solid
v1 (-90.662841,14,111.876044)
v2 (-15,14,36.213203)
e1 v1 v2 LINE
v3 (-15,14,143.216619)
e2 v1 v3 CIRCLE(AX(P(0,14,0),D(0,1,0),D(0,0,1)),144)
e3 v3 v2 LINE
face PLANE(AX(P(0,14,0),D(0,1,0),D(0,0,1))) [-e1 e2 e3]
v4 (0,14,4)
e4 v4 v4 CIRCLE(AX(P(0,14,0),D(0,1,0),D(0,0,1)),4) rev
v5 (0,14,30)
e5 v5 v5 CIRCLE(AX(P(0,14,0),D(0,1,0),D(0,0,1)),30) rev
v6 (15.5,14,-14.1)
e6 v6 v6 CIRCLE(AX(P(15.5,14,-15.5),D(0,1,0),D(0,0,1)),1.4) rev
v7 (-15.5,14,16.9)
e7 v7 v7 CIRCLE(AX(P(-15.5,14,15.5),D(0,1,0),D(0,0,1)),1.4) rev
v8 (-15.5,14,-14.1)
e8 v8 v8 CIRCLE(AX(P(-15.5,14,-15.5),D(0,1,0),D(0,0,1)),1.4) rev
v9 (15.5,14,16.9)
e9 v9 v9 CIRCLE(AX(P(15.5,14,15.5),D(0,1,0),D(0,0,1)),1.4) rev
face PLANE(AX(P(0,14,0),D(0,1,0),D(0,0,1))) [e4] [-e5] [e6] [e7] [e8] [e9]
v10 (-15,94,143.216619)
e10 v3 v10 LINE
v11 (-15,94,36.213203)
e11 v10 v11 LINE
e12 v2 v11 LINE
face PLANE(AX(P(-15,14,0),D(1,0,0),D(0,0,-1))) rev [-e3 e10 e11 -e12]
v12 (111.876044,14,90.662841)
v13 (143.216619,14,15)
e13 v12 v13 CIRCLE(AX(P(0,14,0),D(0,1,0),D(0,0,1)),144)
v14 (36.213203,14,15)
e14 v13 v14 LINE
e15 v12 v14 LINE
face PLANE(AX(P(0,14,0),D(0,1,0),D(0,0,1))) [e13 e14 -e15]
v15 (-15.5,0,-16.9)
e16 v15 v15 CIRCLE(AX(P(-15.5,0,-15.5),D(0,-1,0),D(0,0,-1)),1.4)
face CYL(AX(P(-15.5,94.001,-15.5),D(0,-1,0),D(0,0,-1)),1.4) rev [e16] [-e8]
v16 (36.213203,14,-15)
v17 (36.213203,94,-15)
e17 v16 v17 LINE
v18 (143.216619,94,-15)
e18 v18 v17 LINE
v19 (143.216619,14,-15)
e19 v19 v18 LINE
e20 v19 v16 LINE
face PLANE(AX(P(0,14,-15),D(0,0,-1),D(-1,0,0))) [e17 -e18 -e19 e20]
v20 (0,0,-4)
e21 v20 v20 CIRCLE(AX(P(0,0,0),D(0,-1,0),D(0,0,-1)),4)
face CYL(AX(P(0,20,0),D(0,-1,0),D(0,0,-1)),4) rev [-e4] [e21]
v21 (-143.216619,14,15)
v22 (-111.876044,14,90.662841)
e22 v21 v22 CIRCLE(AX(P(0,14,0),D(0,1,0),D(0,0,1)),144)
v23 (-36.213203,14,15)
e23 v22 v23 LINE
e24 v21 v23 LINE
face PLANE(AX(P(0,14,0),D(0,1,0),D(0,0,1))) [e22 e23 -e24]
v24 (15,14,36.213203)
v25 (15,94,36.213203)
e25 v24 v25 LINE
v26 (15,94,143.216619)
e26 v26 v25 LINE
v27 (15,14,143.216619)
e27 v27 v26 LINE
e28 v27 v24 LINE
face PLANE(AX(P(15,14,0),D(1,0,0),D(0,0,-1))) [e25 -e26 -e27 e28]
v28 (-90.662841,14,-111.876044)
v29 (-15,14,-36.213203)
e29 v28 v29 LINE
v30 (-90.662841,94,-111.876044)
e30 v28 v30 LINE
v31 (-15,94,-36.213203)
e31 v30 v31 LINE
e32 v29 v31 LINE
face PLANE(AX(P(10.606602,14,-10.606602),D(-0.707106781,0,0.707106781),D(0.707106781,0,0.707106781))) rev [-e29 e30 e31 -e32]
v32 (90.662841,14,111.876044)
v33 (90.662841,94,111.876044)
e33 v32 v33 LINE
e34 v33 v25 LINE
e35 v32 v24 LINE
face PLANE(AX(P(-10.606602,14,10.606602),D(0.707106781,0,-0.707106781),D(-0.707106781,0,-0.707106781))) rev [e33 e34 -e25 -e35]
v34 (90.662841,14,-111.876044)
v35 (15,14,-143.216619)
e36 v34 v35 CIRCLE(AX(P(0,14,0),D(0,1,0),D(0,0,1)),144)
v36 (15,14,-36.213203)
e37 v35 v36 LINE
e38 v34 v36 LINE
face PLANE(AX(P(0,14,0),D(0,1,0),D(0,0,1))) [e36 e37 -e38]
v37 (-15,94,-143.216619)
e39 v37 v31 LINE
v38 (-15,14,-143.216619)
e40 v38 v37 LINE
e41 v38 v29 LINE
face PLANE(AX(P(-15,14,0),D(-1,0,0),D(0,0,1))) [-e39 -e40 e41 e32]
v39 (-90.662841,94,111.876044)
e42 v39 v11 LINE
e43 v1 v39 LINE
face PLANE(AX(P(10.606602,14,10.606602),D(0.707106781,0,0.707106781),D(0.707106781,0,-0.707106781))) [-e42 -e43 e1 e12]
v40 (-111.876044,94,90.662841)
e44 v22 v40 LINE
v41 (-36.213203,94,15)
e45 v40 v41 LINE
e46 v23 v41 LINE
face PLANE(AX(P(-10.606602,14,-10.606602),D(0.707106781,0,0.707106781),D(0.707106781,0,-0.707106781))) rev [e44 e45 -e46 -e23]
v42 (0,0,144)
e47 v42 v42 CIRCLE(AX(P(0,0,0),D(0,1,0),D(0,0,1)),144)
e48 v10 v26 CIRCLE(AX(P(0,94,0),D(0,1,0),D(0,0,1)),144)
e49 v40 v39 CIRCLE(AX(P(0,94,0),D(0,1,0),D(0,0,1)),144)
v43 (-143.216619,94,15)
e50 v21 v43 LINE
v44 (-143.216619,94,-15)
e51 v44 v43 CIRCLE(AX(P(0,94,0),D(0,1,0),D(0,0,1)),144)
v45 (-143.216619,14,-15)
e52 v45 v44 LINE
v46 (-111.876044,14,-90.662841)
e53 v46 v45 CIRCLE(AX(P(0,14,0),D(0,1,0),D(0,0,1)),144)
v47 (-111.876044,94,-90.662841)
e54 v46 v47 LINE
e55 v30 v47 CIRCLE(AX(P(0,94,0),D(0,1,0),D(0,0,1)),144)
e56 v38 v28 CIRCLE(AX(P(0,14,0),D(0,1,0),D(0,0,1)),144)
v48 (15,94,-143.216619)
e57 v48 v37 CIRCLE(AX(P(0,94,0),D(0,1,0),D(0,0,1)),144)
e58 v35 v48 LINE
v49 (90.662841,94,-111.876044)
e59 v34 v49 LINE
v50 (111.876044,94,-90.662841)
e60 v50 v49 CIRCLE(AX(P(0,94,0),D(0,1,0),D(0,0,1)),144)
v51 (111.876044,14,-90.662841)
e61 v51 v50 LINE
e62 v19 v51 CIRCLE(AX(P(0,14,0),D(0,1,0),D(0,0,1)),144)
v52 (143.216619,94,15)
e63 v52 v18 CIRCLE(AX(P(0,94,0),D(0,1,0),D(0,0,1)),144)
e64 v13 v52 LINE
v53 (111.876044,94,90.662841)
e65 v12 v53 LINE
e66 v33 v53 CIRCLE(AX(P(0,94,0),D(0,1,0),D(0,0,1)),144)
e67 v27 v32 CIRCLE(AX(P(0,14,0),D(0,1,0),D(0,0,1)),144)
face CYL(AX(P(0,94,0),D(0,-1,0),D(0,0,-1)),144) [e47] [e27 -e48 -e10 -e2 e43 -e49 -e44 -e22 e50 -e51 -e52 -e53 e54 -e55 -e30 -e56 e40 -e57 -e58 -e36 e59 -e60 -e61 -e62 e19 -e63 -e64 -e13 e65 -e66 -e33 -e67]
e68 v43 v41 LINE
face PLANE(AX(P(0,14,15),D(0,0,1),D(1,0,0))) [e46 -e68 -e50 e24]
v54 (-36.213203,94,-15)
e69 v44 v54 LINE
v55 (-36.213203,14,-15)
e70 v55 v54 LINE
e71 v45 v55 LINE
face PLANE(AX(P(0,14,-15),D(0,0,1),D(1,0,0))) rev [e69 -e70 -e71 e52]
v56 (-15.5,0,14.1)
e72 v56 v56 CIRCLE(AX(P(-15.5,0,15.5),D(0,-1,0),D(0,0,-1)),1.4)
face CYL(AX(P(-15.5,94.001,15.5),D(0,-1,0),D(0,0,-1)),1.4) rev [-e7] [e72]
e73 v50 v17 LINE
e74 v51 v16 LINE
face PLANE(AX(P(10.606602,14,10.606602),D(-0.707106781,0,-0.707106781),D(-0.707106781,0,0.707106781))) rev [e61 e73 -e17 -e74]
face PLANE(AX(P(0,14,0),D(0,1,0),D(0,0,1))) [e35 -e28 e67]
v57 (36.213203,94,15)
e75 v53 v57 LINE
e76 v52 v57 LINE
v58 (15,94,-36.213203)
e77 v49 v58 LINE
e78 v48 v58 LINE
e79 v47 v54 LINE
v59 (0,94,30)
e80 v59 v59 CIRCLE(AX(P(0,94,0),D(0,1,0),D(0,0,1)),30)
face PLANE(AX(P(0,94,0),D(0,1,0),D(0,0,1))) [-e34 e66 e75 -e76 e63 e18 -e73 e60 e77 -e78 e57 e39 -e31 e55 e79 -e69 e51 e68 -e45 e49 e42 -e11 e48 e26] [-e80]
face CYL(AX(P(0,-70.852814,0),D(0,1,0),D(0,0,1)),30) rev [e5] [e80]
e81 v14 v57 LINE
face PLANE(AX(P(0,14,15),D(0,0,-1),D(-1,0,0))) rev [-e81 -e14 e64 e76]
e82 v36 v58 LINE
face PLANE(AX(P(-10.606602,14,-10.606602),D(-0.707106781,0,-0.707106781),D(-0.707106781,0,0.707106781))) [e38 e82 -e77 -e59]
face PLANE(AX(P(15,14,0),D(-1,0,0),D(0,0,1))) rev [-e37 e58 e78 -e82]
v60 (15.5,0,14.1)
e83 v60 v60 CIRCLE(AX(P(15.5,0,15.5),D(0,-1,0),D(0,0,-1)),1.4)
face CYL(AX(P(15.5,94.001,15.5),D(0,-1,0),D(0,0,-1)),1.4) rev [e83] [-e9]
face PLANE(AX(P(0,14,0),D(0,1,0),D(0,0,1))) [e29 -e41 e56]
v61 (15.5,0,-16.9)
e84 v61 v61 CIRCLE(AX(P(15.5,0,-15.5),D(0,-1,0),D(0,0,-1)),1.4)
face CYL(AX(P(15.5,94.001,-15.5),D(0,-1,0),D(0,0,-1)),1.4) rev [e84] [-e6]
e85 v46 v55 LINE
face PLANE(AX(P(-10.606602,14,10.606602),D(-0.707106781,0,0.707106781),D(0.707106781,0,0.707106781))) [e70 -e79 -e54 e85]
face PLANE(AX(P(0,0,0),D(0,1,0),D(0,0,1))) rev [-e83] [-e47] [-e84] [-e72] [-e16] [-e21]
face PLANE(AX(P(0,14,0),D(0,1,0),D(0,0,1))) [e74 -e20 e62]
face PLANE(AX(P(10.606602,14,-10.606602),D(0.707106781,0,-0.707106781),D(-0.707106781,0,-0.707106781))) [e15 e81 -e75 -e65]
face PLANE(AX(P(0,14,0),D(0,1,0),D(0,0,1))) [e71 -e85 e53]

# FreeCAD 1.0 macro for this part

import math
import FreeCAD as App
import Part
import Sketcher

doc = App.newDocument("Part")
body = doc.addObject("PartDesign::Body", "Body")

# Sketch on XZ plane
sketch1 = doc.addObject("Sketcher::SketchObject", "Sketch")
body.addObject(sketch1)
sketch1.AttachmentSupport = (doc.XZ_Plane, [""])
sketch1.MapMode = "FlatFace"
sketch1.addGeometry(Part.Circle(App.Vector(0, 0, 0), App.Vector(0, 0, 1), 144), False)
sketch1.addConstraint([
    Sketcher.Constraint("Coincident", 0, 3, -1, 1),
    Sketcher.Constraint("Diameter", 0, 288.0),
])
pad1 = doc.addObject("PartDesign::Pad", "Pad")
body.addObject(pad1)
pad1.Profile = sketch1
pad1.Length = 94
pad1.Reversed = True

# Sketch on XZ plane
sketch2 = doc.addObject("Sketcher::SketchObject", "Sketch001")
body.addObject(sketch2)
sketch2.AttachmentSupport = (doc.XZ_Plane, [""])
sketch2.MapMode = "FlatFace"
sketch2.AttachmentOffset = App.Placement(App.Vector(0, 0, -94), App.Rotation())
sketch2.addGeometry([
    Part.LineSegment(App.Vector(-15, -36, 0), App.Vector(-15, -143, 0)),  # 0
    Part.ArcOfCircle(Part.Circle(App.Vector(0, 0, 0), App.Vector(0, 0, 1), 144), math.radians(-129), math.radians(-96)),  # 1
    Part.LineSegment(App.Vector(-91, -112, 0), App.Vector(-15, -36, 0)),  # 2
    Part.LineSegment(App.Vector(15, -36, 0), App.Vector(91, -112, 0)),  # 3
    Part.ArcOfCircle(Part.Circle(App.Vector(0, 0, 0), App.Vector(0, 0, 1), 144), math.radians(-84), math.radians(-51)),  # 4
    Part.LineSegment(App.Vector(15, -143, 0), App.Vector(15, -36, 0)),  # 5
    Part.ArcOfCircle(Part.Circle(App.Vector(0, 0, 0), App.Vector(0, 0, 1), 144), math.radians(-39), math.radians(-6)),  # 6
    Part.LineSegment(App.Vector(112, -91, 0), App.Vector(36, -15, 0)),  # 7
    Part.LineSegment(App.Vector(36, -15, 0), App.Vector(143, -15, 0)),  # 8
    Part.ArcOfCircle(Part.Circle(App.Vector(0, 0, 0), App.Vector(0, 0, 1), 144), math.radians(6), math.radians(39)),  # 9
    Part.LineSegment(App.Vector(143, 15, 0), App.Vector(36, 15, 0)),  # 10
    Part.LineSegment(App.Vector(36, 15, 0), App.Vector(112, 91, 0)),  # 11
    Part.ArcOfCircle(Part.Circle(App.Vector(0, 0, 0), App.Vector(0, 0, 1), 144), math.radians(51), math.radians(84)),  # 12
    Part.LineSegment(App.Vector(91, 112, 0), App.Vector(15, 36, 0)),  # 13
    Part.LineSegment(App.Vector(15, 36, 0), App.Vector(15, 143, 0)),  # 14
    Part.ArcOfCircle(Part.Circle(App.Vector(0, 0, 0), App.Vector(0, 0, 1), 144), math.radians(96), math.radians(129)),  # 15
    Part.LineSegment(App.Vector(-15, 143, 0), App.Vector(-15, 36, 0)),  # 16
    Part.LineSegment(App.Vector(-15, 36, 0), App.Vector(-91, 112, 0)),  # 17
    Part.LineSegment(App.Vector(-36, 15, 0), App.Vector(-143, 15, 0)),  # 18
    Part.ArcOfCircle(Part.Circle(App.Vector(0, 0, 0), App.Vector(0, 0, 1), 144), math.radians(141), math.radians(174)),  # 19
    Part.LineSegment(App.Vector(-112, 91, 0), App.Vector(-36, 15, 0)),  # 20
    Part.LineSegment(App.Vector(-36, -15, 0), App.Vector(-112, -91, 0)),  # 21
    Part.ArcOfCircle(Part.Circle(App.Vector(0, 0, 0), App.Vector(0, 0, 1), 144), math.radians(-174), math.radians(-141)),  # 22
    Part.LineSegment(App.Vector(-143, -15, 0), App.Vector(-36, -15, 0)),  # 23
], False)
sketch2.addConstraint([
    Sketcher.Constraint("Coincident", 0, 2, 1, 2),
    Sketcher.Constraint("Coincident", 1, 1, 2, 1),
    Sketcher.Constraint("Coincident", 2, 2, 0, 1),
    Sketcher.Constraint("Coincident", 3, 2, 4, 2),
    Sketcher.Constraint("Coincident", 4, 1, 5, 1),
    Sketcher.Constraint("Coincident", 5, 2, 3, 1),
    Sketcher.Constraint("Coincident", 6, 1, 7, 1),
    Sketcher.Constraint("Coincident", 7, 2, 8, 1),
    Sketcher.Constraint("Coincident", 8, 2, 6, 2),
    Sketcher.Constraint("Coincident", 9, 1, 10, 1),
    Sketcher.Constraint("Coincident", 10, 2, 11, 1),
    Sketcher.Constraint("Coincident", 11, 2, 9, 2),
    Sketcher.Constraint("Coincident", 12, 1, 13, 1),
    Sketcher.Constraint("Coincident", 13, 2, 14, 1),
    Sketcher.Constraint("Coincident", 14, 2, 12, 2),
    Sketcher.Constraint("Coincident", 15, 1, 16, 1),
    Sketcher.Constraint("Coincident", 16, 2, 17, 1),
    Sketcher.Constraint("Coincident", 17, 2, 15, 2),
    Sketcher.Constraint("Coincident", 18, 2, 19, 2),
    Sketcher.Constraint("Coincident", 19, 1, 20, 1),
    Sketcher.Constraint("Coincident", 20, 2, 18, 1),
    Sketcher.Constraint("Coincident", 21, 2, 22, 2),
    Sketcher.Constraint("Coincident", 22, 1, 23, 1),
    Sketcher.Constraint("Coincident", 23, 2, 21, 1),
    Sketcher.Constraint("Vertical", 0),
    Sketcher.Constraint("Vertical", 5),
    Sketcher.Constraint("Horizontal", 8),
    Sketcher.Constraint("Horizontal", 10),
    Sketcher.Constraint("Vertical", 14),
    Sketcher.Constraint("Vertical", 16),
    Sketcher.Constraint("Horizontal", 18),
    Sketcher.Constraint("Horizontal", 23),
    Sketcher.Constraint("Coincident", 1, 3, -1, 1),
    Sketcher.Constraint("Coincident", 4, 3, -1, 1),
    Sketcher.Constraint("Coincident", 6, 3, -1, 1),
    Sketcher.Constraint("Coincident", 9, 3, -1, 1),
    Sketcher.Constraint("Coincident", 12, 3, -1, 1),
    Sketcher.Constraint("Coincident", 15, 3, -1, 1),
    Sketcher.Constraint("Coincident", 19, 3, -1, 1),
    Sketcher.Constraint("Coincident", 22, 3, -1, 1),
    Sketcher.Constraint("Equal", 1, 4),
    Sketcher.Constraint("Equal", 4, 6),
    Sketcher.Constraint("Equal", 6, 9),
    Sketcher.Constraint("Equal", 9, 12),
    Sketcher.Constraint("Equal", 12, 15),
    Sketcher.Constraint("Equal", 15, 19),
    Sketcher.Constraint("Equal", 19, 22),
    Sketcher.Constraint("Symmetric", 2, 2, 13, 2, -1, 1),
    Sketcher.Constraint("Symmetric", 5, 2, 16, 2, -1, 1),
    Sketcher.Constraint("Symmetric", 7, 2, 20, 2, -1, 1),
    Sketcher.Constraint("Symmetric", 10, 2, 23, 2, -1, 1),
    Sketcher.Constraint("Symmetric", 2, 2, 5, 2, -2),
    Sketcher.Constraint("Symmetric", 10, 2, 20, 2, -2),
    Sketcher.Constraint("Perpendicular", 2, 3),
    Sketcher.Constraint("Parallel", 3, 7),
    Sketcher.Constraint("Perpendicular", 7, 11),
    Sketcher.Constraint("Parallel", 11, 13),
    Sketcher.Constraint("Perpendicular", 13, 17),
    Sketcher.Constraint("Parallel", 17, 20),
    Sketcher.Constraint("Perpendicular", 20, 21),
    Sketcher.Constraint("Horizontal", 1, 1, 3, 2),
    Sketcher.Constraint("Equal", 23, 0),
    Sketcher.Constraint("Equal", 3, 7),
    Sketcher.Constraint("Radius", 1, 144.0),
    Sketcher.Constraint("DistanceX", 0, 2, -1, 1, 15.0),
    Sketcher.Constraint("DistanceX", 8, 1, 8, 2, 107.003416),
])
pocket1 = doc.addObject("PartDesign::Pocket", "Pocket")
body.addObject(pocket1)
pocket1.Profile = sketch2
pocket1.Length = 80
pocket1.Reversed = True

# Sketch on XZ plane
sketch3 = doc.addObject("Sketcher::SketchObject", "Sketch002")
body.addObject(sketch3)
sketch3.AttachmentSupport = (doc.XZ_Plane, [""])
sketch3.MapMode = "FlatFace"
sketch3.addGeometry(Part.Circle(App.Vector(0, 0, 0), App.Vector(0, 0, 1), 4), False)
sketch3.addConstraint([
    Sketcher.Constraint("Coincident", 0, 3, -1, 1),
    Sketcher.Constraint("Diameter", 0, 8.0),
])
pocket2 = doc.addObject("PartDesign::Pocket", "Pocket001")
body.addObject(pocket2)
pocket2.Profile = sketch3
pocket2.Length = 20

# Sketch on XZ plane
sketch4 = doc.addObject("Sketcher::SketchObject", "Sketch003")
body.addObject(sketch4)
sketch4.AttachmentSupport = (doc.XZ_Plane, [""])
sketch4.MapMode = "FlatFace"
sketch4.addGeometry(Part.Circle(App.Vector(15.5, -15.5, 0), App.Vector(0, 0, 1), 1.4), False)
sketch4.addConstraint([
    Sketcher.Constraint("Diameter", 0, 2.8),
    Sketcher.Constraint("DistanceX", -1, 1, 0, 3, 15.5),
    Sketcher.Constraint("DistanceY", 0, 3, -1, 1, 15.5),
])
pocket3 = doc.addObject("PartDesign::Pocket", "Pocket002")
body.addObject(pocket3)
pocket3.Profile = sketch4
pocket3.Type = "UpToFirst"

# Sketch on XZ plane
sketch5 = doc.addObject("Sketcher::SketchObject", "Sketch004")
body.addObject(sketch5)
sketch5.AttachmentSupport = (doc.XZ_Plane, [""])
sketch5.MapMode = "FlatFace"
sketch5.addGeometry(Part.Circle(App.Vector(15.5, 15.5, 0), App.Vector(0, 0, 1), 1.4), False)
sketch5.addConstraint([
    Sketcher.Constraint("Diameter", 0, 2.8),
    Sketcher.Constraint("DistanceX", -1, 1, 0, 3, 15.5),
    Sketcher.Constraint("DistanceY", -1, 1, 0, 3, 15.5),
])
pocket4 = doc.addObject("PartDesign::Pocket", "Pocket003")
body.addObject(pocket4)
pocket4.Profile = sketch5
pocket4.Type = "UpToFirst"

# Sketch on XZ plane
sketch6 = doc.addObject("Sketcher::SketchObject", "Sketch005")
body.addObject(sketch6)
sketch6.AttachmentSupport = (doc.XZ_Plane, [""])
sketch6.MapMode = "FlatFace"
sketch6.addGeometry(Part.Circle(App.Vector(-15.5, 15.5, 0), App.Vector(0, 0, 1), 1.4), False)
sketch6.addConstraint([
    Sketcher.Constraint("Diameter", 0, 2.8),
    Sketcher.Constraint("DistanceX", 0, 3, -1, 1, 15.5),
    Sketcher.Constraint("DistanceY", -1, 1, 0, 3, 15.5),
])
pocket5 = doc.addObject("PartDesign::Pocket", "Pocket004")
body.addObject(pocket5)
pocket5.Profile = sketch6
pocket5.Type = "UpToFirst"

# Sketch on XZ plane
sketch7 = doc.addObject("Sketcher::SketchObject", "Sketch006")
body.addObject(sketch7)
sketch7.AttachmentSupport = (doc.XZ_Plane, [""])
sketch7.MapMode = "FlatFace"
sketch7.addGeometry(Part.Circle(App.Vector(-15.5, -15.5, 0), App.Vector(0, 0, 1), 1.4), False)
sketch7.addConstraint([
    Sketcher.Constraint("Diameter", 0, 2.8),
    Sketcher.Constraint("DistanceX", 0, 3, -1, 1, 15.5),
    Sketcher.Constraint("DistanceY", 0, 3, -1, 1, 15.5),
])
pocket6 = doc.addObject("PartDesign::Pocket", "Pocket005")
body.addObject(pocket6)
pocket6.Profile = sketch7
pocket6.Type = "UpToFirst"

# Sketch on XZ plane
sketch8 = doc.addObject("Sketcher::SketchObject", "Sketch007")
body.addObject(sketch8)
sketch8.AttachmentSupport = (doc.XZ_Plane, [""])
sketch8.MapMode = "FlatFace"
sketch8.AttachmentOffset = App.Placement(App.Vector(0, 0, -94), App.Rotation())
sketch8.addGeometry(Part.Circle(App.Vector(0, 0, 0), App.Vector(0, 0, 1), 30), False)
sketch8.addConstraint([
    Sketcher.Constraint("Coincident", 0, 3, -1, 1),
    Sketcher.Constraint("Diameter", 0, 60.0),
])
pocket7 = doc.addObject("PartDesign::Pocket", "Pocket006")
body.addObject(pocket7)
pocket7.Profile = sketch8
pocket7.Length = 80
pocket7.Reversed = True

doc.recompute()
